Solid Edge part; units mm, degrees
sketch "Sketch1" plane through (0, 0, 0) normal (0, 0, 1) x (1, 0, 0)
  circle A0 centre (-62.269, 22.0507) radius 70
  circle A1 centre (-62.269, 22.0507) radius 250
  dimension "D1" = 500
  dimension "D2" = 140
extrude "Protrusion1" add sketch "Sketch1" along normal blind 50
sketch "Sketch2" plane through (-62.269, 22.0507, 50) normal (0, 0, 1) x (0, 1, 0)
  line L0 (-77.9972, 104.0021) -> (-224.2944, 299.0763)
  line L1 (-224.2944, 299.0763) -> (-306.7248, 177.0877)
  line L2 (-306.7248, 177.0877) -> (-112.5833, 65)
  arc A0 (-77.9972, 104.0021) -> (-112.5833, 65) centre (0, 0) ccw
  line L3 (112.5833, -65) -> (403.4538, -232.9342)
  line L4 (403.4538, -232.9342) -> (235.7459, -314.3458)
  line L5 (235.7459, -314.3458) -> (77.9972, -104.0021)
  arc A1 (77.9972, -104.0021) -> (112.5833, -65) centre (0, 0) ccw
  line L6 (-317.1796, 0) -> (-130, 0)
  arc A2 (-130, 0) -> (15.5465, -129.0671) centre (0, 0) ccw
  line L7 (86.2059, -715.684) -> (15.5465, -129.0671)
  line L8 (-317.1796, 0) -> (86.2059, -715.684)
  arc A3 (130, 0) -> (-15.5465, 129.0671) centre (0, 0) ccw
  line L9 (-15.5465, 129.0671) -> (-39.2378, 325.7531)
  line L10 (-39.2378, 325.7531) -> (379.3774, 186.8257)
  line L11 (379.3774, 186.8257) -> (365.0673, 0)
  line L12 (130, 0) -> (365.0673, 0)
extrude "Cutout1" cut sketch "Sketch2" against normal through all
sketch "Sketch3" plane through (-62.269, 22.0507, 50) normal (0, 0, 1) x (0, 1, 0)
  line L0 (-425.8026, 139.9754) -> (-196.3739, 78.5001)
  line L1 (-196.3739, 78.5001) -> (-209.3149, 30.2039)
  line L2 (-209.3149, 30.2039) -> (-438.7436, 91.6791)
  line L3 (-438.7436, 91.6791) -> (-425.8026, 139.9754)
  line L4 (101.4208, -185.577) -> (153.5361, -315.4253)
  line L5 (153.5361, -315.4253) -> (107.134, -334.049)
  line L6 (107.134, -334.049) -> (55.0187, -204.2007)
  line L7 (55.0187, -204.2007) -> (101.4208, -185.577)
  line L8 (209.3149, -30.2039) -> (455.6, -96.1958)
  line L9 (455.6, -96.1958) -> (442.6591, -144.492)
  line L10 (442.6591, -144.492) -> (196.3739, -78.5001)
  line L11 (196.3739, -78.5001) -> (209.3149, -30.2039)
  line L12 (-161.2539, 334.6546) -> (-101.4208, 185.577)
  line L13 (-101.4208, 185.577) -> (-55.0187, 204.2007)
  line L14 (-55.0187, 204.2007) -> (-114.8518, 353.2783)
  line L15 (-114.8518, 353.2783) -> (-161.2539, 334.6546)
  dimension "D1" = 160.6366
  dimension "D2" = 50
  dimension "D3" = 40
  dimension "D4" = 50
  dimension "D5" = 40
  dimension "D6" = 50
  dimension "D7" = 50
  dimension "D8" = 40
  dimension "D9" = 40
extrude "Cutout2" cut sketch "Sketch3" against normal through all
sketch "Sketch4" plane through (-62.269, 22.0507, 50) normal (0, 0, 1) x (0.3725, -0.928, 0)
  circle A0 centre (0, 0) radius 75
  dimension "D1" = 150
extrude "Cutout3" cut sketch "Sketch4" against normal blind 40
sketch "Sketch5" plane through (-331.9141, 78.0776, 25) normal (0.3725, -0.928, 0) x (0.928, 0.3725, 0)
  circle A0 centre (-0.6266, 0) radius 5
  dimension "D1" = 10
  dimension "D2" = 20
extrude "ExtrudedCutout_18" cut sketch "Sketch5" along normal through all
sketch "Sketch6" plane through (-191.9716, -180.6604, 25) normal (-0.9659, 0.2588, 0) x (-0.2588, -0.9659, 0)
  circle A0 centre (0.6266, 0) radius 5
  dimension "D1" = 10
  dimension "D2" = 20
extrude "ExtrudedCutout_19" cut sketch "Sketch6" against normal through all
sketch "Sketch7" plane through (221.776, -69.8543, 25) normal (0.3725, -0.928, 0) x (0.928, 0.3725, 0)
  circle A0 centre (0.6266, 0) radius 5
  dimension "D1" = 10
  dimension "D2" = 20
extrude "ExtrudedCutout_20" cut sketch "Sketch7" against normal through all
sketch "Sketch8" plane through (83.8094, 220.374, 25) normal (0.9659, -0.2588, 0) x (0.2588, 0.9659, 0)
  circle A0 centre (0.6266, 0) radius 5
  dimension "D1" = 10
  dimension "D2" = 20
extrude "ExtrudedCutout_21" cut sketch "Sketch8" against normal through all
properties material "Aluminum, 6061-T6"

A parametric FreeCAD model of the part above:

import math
import FreeCAD as App
import Part
import Sketcher
Q = App.Units.Quantity

doc = App.newDocument("Part")
params = doc.addObject("Spreadsheet::Sheet", "Params")
for row, (alias, value) in enumerate([
    ("sketch1_diameter", "500 mm"),
    ("sketch1_diameter2", "140 mm"),
    ("pad1_length", "50 mm"),
    ("sketch2_radius", "130 mm"),
    ("sketch2_radius2", "130 mm"),
    ("sketch2_radius3", "130 mm"),
    ("sketch2_radius4", "130 mm"),
    ("sketch3_length", "50 mm"),
    ("sketch3_length2", "50 mm"),
    ("sketch3_length3", "50 mm"),
    ("sketch3_length4", "50 mm"),
    ("sketch3_length5", "50 mm"),
    ("sketch4_diameter", "150 mm"),
    ("pocket3_length", "40 mm"),
    ("sketch5_diameter", "10 mm"),
    ("sketch6_diameter", "10 mm"),
    ("sketch7_diameter", "10 mm"),
    ("sketch8_diameter", "10 mm"),
], start=1):
    params.set(f"A{row}", alias)
    params.set(f"B{row}", "=" + value)
    params.setAlias(f"B{row}", alias)

body = doc.addObject("PartDesign::Body", "Body")

sketch1 = body.newObject("Sketcher::SketchObject", "Sketch")
sketch1.AttachmentSupport = (doc.getObject("XY_Plane"), [""])
sketch1.MapMode = "FlatFace"
sketch1.addGeometry([
    Part.Circle(App.Vector(-62.269, 22.0507, 0), App.Vector(0, 0, 1), 250),
    Part.Circle(App.Vector(-62.269, 22.0507, 0), App.Vector(0, 0, 1), 70),
], False)
sketch1.addConstraint([
    Sketcher.Constraint("Coincident", 1, 3, 0, 3),
    Sketcher.Constraint("Diameter", 0, Q("500 mm")),
    Sketcher.Constraint("Diameter", 1, Q("140 mm")),
    Sketcher.Constraint("DistanceX", 0, 3, -1, 1, Q("62.269 mm")),
    Sketcher.Constraint("DistanceY", -1, 1, 0, 3, Q("22.0507 mm")),
])
sketch1.setExpression("Constraints[1]", "Params.sketch1_diameter")
sketch1.setExpression("Constraints[2]", "Params.sketch1_diameter2")
pad1 = body.newObject("PartDesign::Pad", "Pad")
pad1.Profile = sketch1
pad1.setExpression("Length", "Params.pad1_length")

sketch2 = body.newObject("Sketcher::SketchObject", "Sketch001")
sketch2.AttachmentSupport = (doc.getObject("XY_Plane"), [""])
sketch2.MapMode = "FlatFace"
sketch2.AttachmentOffset = App.Placement(App.Vector(0, 0, 50), App.Rotation())
sketch2.addGeometry([
    Part.ArcOfCircle(Part.Circle(App.Vector(-62.269, 22.0507, 0), App.Vector(0, 0, 1), 130), math.radians(-143.131645), math.radians(-120.000001)),
    Part.LineSegment(App.Vector(-166.2711, -55.9465, 0), App.Vector(-361.3453, -202.2437, 0)),
    Part.LineSegment(App.Vector(-361.3453, -202.2437, 0), App.Vector(-239.3567, -284.6741, 0)),
    Part.LineSegment(App.Vector(-239.3567, -284.6741, 0), App.Vector(-127.269, -90.5326, 0)),
    Part.LineSegment(App.Vector(170.6652, 425.5045, 0), App.Vector(2.731, 134.634, 0)),
    Part.ArcOfCircle(Part.Circle(App.Vector(-62.269, 22.0507, 0), App.Vector(0, 0, 1), 130), math.radians(36.868355), math.radians(59.999999)),
    Part.LineSegment(App.Vector(41.7331, 100.0479, 0), App.Vector(252.0768, 257.7966, 0)),
    Part.LineSegment(App.Vector(252.0768, 257.7966, 0), App.Vector(170.6652, 425.5045, 0)),
    Part.LineSegment(App.Vector(-62.269, -107.9493, 0), App.Vector(-62.269, -295.1289, 0)),
    Part.LineSegment(App.Vector(-62.269, -295.1289, 0), App.Vector(653.415, 108.2566, 0)),
    Part.LineSegment(App.Vector(653.415, 108.2566, 0), App.Vector(66.7981, 37.5972, 0)),
    Part.ArcOfCircle(Part.Circle(App.Vector(-62.269, 22.0507, 0), App.Vector(0, 0, 1), 130), math.radians(-90), math.radians(6.86835)),
    Part.ArcOfCircle(Part.Circle(App.Vector(-62.269, 22.0507, 0), App.Vector(0, 0, 1), 130), math.radians(90), math.radians(186.86835)),
    Part.LineSegment(App.Vector(-62.269, 152.0507, 0), App.Vector(-62.269, 387.118, 0)),
    Part.LineSegment(App.Vector(-62.269, 387.118, 0), App.Vector(-249.0947, 401.4281, 0)),
    Part.LineSegment(App.Vector(-249.0947, 401.4281, 0), App.Vector(-388.0221, -17.1871, 0)),
    Part.LineSegment(App.Vector(-388.0221, -17.1871, 0), App.Vector(-191.3361, 6.5042, 0)),
], False)
sketch2.addConstraint([
    Sketcher.Constraint("Coincident", 0, 1, 1, 1),
    Sketcher.Constraint("Coincident", 1, 2, 2, 1),
    Sketcher.Constraint("Coincident", 2, 2, 3, 1),
    Sketcher.Constraint("Coincident", 3, 2, 0, 2),
    Sketcher.Constraint("Coincident", 4, 2, 5, 2),
    Sketcher.Constraint("Coincident", 5, 1, 6, 1),
    Sketcher.Constraint("Coincident", 6, 2, 7, 1),
    Sketcher.Constraint("Coincident", 7, 2, 4, 1),
    Sketcher.Constraint("Coincident", 8, 2, 9, 1),
    Sketcher.Constraint("Coincident", 9, 2, 10, 1),
    Sketcher.Constraint("Coincident", 10, 2, 11, 2),
    Sketcher.Constraint("Coincident", 11, 1, 8, 1),
    Sketcher.Constraint("Coincident", 12, 1, 13, 1),
    Sketcher.Constraint("Coincident", 13, 2, 14, 1),
    Sketcher.Constraint("Coincident", 14, 2, 15, 1),
    Sketcher.Constraint("Coincident", 15, 2, 16, 1),
    Sketcher.Constraint("Coincident", 16, 2, 12, 2),
    Sketcher.Constraint("Vertical", 8),
    Sketcher.Constraint("Vertical", 13),
    Sketcher.Constraint("Coincident", 5, 3, 0, 3),
    Sketcher.Constraint("Coincident", 11, 3, 0, 3),
    Sketcher.Constraint("Coincident", 12, 3, 0, 3),
    Sketcher.Constraint("Radius", 0, Q("130 mm")),
    Sketcher.Constraint("Radius", 5, Q("130 mm")),
    Sketcher.Constraint("Radius", 11, Q("130 mm")),
    Sketcher.Constraint("Radius", 12, Q("130 mm")),
    Sketcher.Constraint("DistanceX", 3, 2, 0, 3, Q("65 mm")),
    Sketcher.Constraint("DistanceX", 0, 3, 4, 2, Q("65 mm")),
    Sketcher.Constraint("DistanceX", 3, 2, 8, 2, Q("65 mm")),
    Sketcher.Constraint("DistanceX", 12, 1, 4, 2, Q("65 mm")),
    Sketcher.Constraint("DistanceY", 9, 2, 6, 2, Q("149.54 mm")),
    Sketcher.Constraint("DistanceY", 5, 1, 13, 2, Q("287.07 mm")),
    Sketcher.Constraint("DistanceY", 13, 2, 14, 2, Q("14.31 mm")),
    Sketcher.Constraint("DistanceX", 14, 2, 7, 2, Q("419.76 mm")),
    Sketcher.Constraint("Distance", 14, Q("187.373 mm")),
    Sketcher.Constraint("DistanceY", 8, 2, 8, 1, Q("187.1796 mm")),
    Sketcher.Constraint("DistanceY", 13, 1, 13, 2, Q("235.0673 mm")),
    Sketcher.Constraint("DistanceX", 0, 3, -1, 1, Q("62.269 mm")),
    Sketcher.Constraint("DistanceX", 0, 1, -1, 1, Q("166.271 mm")),
    Sketcher.Constraint("DistanceY", 2, 2, -1, 1, Q("284.674 mm")),
    Sketcher.Constraint("DistanceY", -1, 1, 4, 2, Q("134.634 mm")),
    Sketcher.Constraint("DistanceX", -1, 1, 9, 2, Q("653.415 mm")),
    Sketcher.Constraint("DistanceX", -1, 1, 10, 2, Q("66.798 mm")),
    Sketcher.Constraint("DistanceX", 15, 2, -1, 1, Q("388.022 mm")),
    Sketcher.Constraint("DistanceY", 15, 2, -1, 1, Q("17.187 mm")),
    Sketcher.Constraint("DistanceX", 16, 2, -1, 1, Q("191.336 mm")),
    Sketcher.Constraint("DistanceY", 0, 3, 6, 2, Q("235.746 mm")),
    Sketcher.Constraint("DistanceY", 6, 2, 7, 2, Q("167.708 mm")),
    Sketcher.Constraint("Distance", 1, Q("243.8377 mm")),
    Sketcher.Constraint("Distance", 2, Q("147.2277 mm")),
    Sketcher.Constraint("Distance", 3, Q("224.1753 mm")),
    Sketcher.Constraint("Distance", 6, Q("262.9242 mm")),
])
sketch2.setExpression("Constraints[22]", "Params.sketch2_radius")
sketch2.setExpression("Constraints[23]", "Params.sketch2_radius2")
sketch2.setExpression("Constraints[24]", "Params.sketch2_radius3")
sketch2.setExpression("Constraints[25]", "Params.sketch2_radius4")
pocket1 = body.newObject("PartDesign::Pocket", "Pocket")
pocket1.Profile = sketch2
pocket1.Type = "ThroughAll"

sketch3 = body.newObject("Sketcher::SketchObject", "Sketch002")
sketch3.AttachmentSupport = (doc.getObject("XY_Plane"), [""])
sketch3.MapMode = "FlatFace"
sketch3.AttachmentOffset = App.Placement(App.Vector(0, 0, 50), App.Rotation())
sketch3.addGeometry([
    Part.LineSegment(App.Vector(-140.7691, -174.3232, 0), App.Vector(-202.2444, -403.7519, 0)),
    Part.LineSegment(App.Vector(-202.2444, -403.7519, 0), App.Vector(-153.9481, -416.6929, 0)),
    Part.LineSegment(App.Vector(-153.9481, -416.6929, 0), App.Vector(-92.4729, -187.2642, 0)),
    Part.LineSegment(App.Vector(-92.4729, -187.2642, 0), App.Vector(-140.7691, -174.3232, 0)),
    Part.LineSegment(App.Vector(253.1563, 175.5868, 0), App.Vector(123.308, 123.4715, 0)),
    Part.LineSegment(App.Vector(123.308, 123.4715, 0), App.Vector(141.9317, 77.0694, 0)),
    Part.LineSegment(App.Vector(141.9317, 77.0694, 0), App.Vector(271.78, 129.1847, 0)),
    Part.LineSegment(App.Vector(271.78, 129.1847, 0), App.Vector(253.1563, 175.5868, 0)),
    Part.LineSegment(App.Vector(33.9268, 477.6507, 0), App.Vector(-32.0651, 231.3656, 0)),
    Part.LineSegment(App.Vector(-32.0651, 231.3656, 0), App.Vector(16.2311, 218.4246, 0)),
    Part.LineSegment(App.Vector(16.2311, 218.4246, 0), App.Vector(82.223, 464.7098, 0)),
    Part.LineSegment(App.Vector(82.223, 464.7098, 0), App.Vector(33.9268, 477.6507, 0)),
    Part.LineSegment(App.Vector(-415.5473, -92.8011, 0), App.Vector(-396.9236, -139.2032, 0)),
    Part.LineSegment(App.Vector(-396.9236, -139.2032, 0), App.Vector(-247.846, -79.3701, 0)),
    Part.LineSegment(App.Vector(-247.846, -79.3701, 0), App.Vector(-266.4697, -32.968, 0)),
    Part.LineSegment(App.Vector(-266.4697, -32.968, 0), App.Vector(-415.5473, -92.8011, 0)),
], False)
sketch3.addConstraint([
    Sketcher.Constraint("Coincident", 0, 2, 1, 1),
    Sketcher.Constraint("Coincident", 1, 2, 2, 1),
    Sketcher.Constraint("Coincident", 2, 2, 3, 1),
    Sketcher.Constraint("Coincident", 3, 2, 0, 1),
    Sketcher.Constraint("Coincident", 4, 2, 5, 1),
    Sketcher.Constraint("Coincident", 5, 2, 6, 1),
    Sketcher.Constraint("Coincident", 6, 2, 7, 1),
    Sketcher.Constraint("Coincident", 7, 2, 4, 1),
    Sketcher.Constraint("Coincident", 8, 2, 9, 1),
    Sketcher.Constraint("Coincident", 9, 2, 10, 1),
    Sketcher.Constraint("Coincident", 10, 2, 11, 1),
    Sketcher.Constraint("Coincident", 11, 2, 8, 1),
    Sketcher.Constraint("Coincident", 12, 2, 13, 1),
    Sketcher.Constraint("Coincident", 13, 2, 14, 1),
    Sketcher.Constraint("Coincident", 14, 2, 15, 1),
    Sketcher.Constraint("Coincident", 15, 2, 12, 1),
    Sketcher.Constraint("Distance", 1, Q("50 mm")),
    Sketcher.Constraint("Distance", 3, Q("50 mm")),
    Sketcher.Constraint("Distance", 5, Q("50 mm")),
    Sketcher.Constraint("Distance", 7, Q("50 mm")),
    Sketcher.Constraint("Distance", 9, Q("50 mm")),
    Sketcher.Constraint("Distance", 11, Q("50 mm")),
    Sketcher.Constraint("Distance", 12, Q("50 mm")),
    Sketcher.Constraint("Distance", 14, Q("50 mm")),
    Sketcher.Constraint("DistanceX", -1, 1, 6, 2, Q("271.78 mm")),
    Sketcher.Constraint("DistanceY", 13, 2, -1, 1, Q("79.37 mm")),
    Sketcher.Constraint("DistanceY", 3, 2, 7, 2, Q("349.91 mm")),
    Sketcher.Constraint("DistanceY", 6, 2, 9, 2, Q("89.24 mm")),
    Sketcher.Constraint("DistanceY", 3, 2, 12, 2, Q("35.12 mm")),
    Sketcher.Constraint("Distance", 0, Q("237.522 mm")),
    Sketcher.Constraint("Distance", 2, Q("237.522 mm")),
    Sketcher.Constraint("Distance", 8, Q("254.973 mm")),
    Sketcher.Constraint("DistanceY", 0, 2, -1, 1, Q("403.752 mm")),
    Sketcher.Constraint("DistanceX", 1, 2, -1, 1, Q("153.948 mm")),
    Sketcher.Constraint("DistanceY", 1, 2, -1, 1, Q("416.693 mm")),
    Sketcher.Constraint("DistanceX", 2, 2, -1, 1, Q("92.473 mm")),
    Sketcher.Constraint("DistanceX", -1, 1, 4, 2, Q("123.308 mm")),
    Sketcher.Constraint("DistanceX", 8, 2, -1, 1, Q("32.065 mm")),
    Sketcher.Constraint("DistanceX", -1, 1, 9, 2, Q("16.231 mm")),
    Sketcher.Constraint("DistanceX", -1, 1, 10, 2, Q("82.223 mm")),
    Sketcher.Constraint("DistanceX", 13, 2, -1, 1, Q("247.846 mm")),
    Sketcher.Constraint("DistanceY", 14, 2, -1, 1, Q("32.968 mm")),
    Sketcher.Constraint("DistanceY", 15, 2, -1, 1, Q("92.801 mm")),
    Sketcher.Constraint("DistanceY", 5, 2, 4, 2, Q("46.402 mm")),
    Sketcher.Constraint("DistanceY", 2, 2, 6, 2, Q("316.449 mm")),
    Sketcher.Constraint("DistanceY", 4, 2, 8, 2, Q("107.894 mm")),
    Sketcher.Constraint("DistanceY", 7, 2, 10, 2, Q("289.123 mm")),
    Sketcher.Constraint("DistanceX", 12, 2, 14, 2, Q("130.454 mm")),
])
sketch3.setExpression("Constraints[16]", "Params.sketch3_length")
sketch3.setExpression("Constraints[17]", "Params.sketch3_length2")
sketch3.setExpression("Constraints[18]", "Params.sketch3_length3")
sketch3.setExpression("Constraints[19]", "Params.sketch3_length4")
sketch3.setExpression("Constraints[20]", "Params.sketch3_length5")
pocket2 = body.newObject("PartDesign::Pocket", "Pocket001")
pocket2.Profile = sketch3
pocket2.Type = "ThroughAll"

sketch4 = body.newObject("Sketcher::SketchObject", "Sketch003")
sketch4.AttachmentSupport = (doc.getObject("XY_Plane"), [""])
sketch4.MapMode = "FlatFace"
sketch4.AttachmentOffset = App.Placement(App.Vector(0, 0, 50), App.Rotation())
sketch4.addGeometry(Part.Circle(App.Vector(-62.269, 22.0507, 0), App.Vector(0, 0, 1), 75), False)
sketch4.addConstraint([
    Sketcher.Constraint("Diameter", 0, Q("150 mm")),
    Sketcher.Constraint("DistanceX", 0, 3, -1, 1, Q("62.269 mm")),
    Sketcher.Constraint("DistanceY", -1, 1, 0, 3, Q("22.0507 mm")),
])
sketch4.setExpression("Constraints[0]", "Params.sketch4_diameter")
pocket3 = body.newObject("PartDesign::Pocket", "Pocket002")
pocket3.Profile = sketch4
pocket3.setExpression("Length", "Params.pocket3_length")

sketch5 = body.newObject("Sketcher::SketchObject", "Sketch004")
sketch5.Placement = App.Placement(App.Vector(-331.9141, 78.0776, 25), App.Rotation(App.Vector(0.928027725, 0.372511129, 0), App.Vector(0, 0, 1), App.Vector(0.372511129, -0.928027725, 0), "ZXY"))
sketch5.addGeometry(Part.Circle(App.Vector(-0.6266, 0, 0), App.Vector(0, 0, 1), 5), False)
sketch5.addConstraint([
    Sketcher.Constraint("PointOnObject", 0, 3, -1),
    Sketcher.Constraint("Diameter", 0, Q("10 mm")),
    Sketcher.Constraint("DistanceX", 0, 3, -1, 1, Q("0.6266 mm")),
])
sketch5.setExpression("Constraints[1]", "Params.sketch5_diameter")
pocket4 = body.newObject("PartDesign::Pocket", "Pocket003")
pocket4.Profile = sketch5
pocket4.Type = "ThroughAll"
pocket4.Reversed = True

sketch6 = body.newObject("Sketcher::SketchObject", "Sketch005")
sketch6.Placement = App.Placement(App.Vector(-191.9716, -180.6604, 25), App.Rotation(App.Vector(-0.258819045, -0.965925826, 0), App.Vector(0, 0, 0.999999999), App.Vector(-0.965925826, 0.258819045, 0), "ZXY"))
sketch6.addGeometry(Part.Circle(App.Vector(0.6266, 0, 0), App.Vector(0, 0, 1), 5), False)
sketch6.addConstraint([
    Sketcher.Constraint("PointOnObject", 0, 3, -1),
    Sketcher.Constraint("Diameter", 0, Q("10 mm")),
    Sketcher.Constraint("DistanceX", -1, 1, 0, 3, Q("0.6266 mm")),
])
sketch6.setExpression("Constraints[1]", "Params.sketch6_diameter")
pocket5 = body.newObject("PartDesign::Pocket", "Pocket004")
pocket5.Profile = sketch6
pocket5.Type = "ThroughAll"

sketch7 = body.newObject("Sketcher::SketchObject", "Sketch006")
sketch7.Placement = App.Placement(App.Vector(221.776, -69.8543, 25), App.Rotation(App.Vector(0.928027725, 0.372511129, 0), App.Vector(0, 0, 1), App.Vector(0.372511129, -0.928027725, 0), "ZXY"))
sketch7.addGeometry(Part.Circle(App.Vector(0.6266, 0, 0), App.Vector(0, 0, 1), 5), False)
sketch7.addConstraint([
    Sketcher.Constraint("PointOnObject", 0, 3, -1),
    Sketcher.Constraint("Diameter", 0, Q("10 mm")),
    Sketcher.Constraint("DistanceX", -1, 1, 0, 3, Q("0.6266 mm")),
])
sketch7.setExpression("Constraints[1]", "Params.sketch7_diameter")
pocket6 = body.newObject("PartDesign::Pocket", "Pocket005")
pocket6.Profile = sketch7
pocket6.Type = "ThroughAll"

sketch8 = body.newObject("Sketcher::SketchObject", "Sketch007")
sketch8.Placement = App.Placement(App.Vector(83.8094, 220.374, 25), App.Rotation(App.Vector(0.258819045, 0.965925826, 0), App.Vector(0, 0, 0.999999999), App.Vector(0.965925826, -0.258819045, 0), "ZXY"))
sketch8.addGeometry(Part.Circle(App.Vector(0.6266, 0, 0), App.Vector(0, 0, 1), 5), False)
sketch8.addConstraint([
    Sketcher.Constraint("PointOnObject", 0, 3, -1),
    Sketcher.Constraint("Diameter", 0, Q("10 mm")),
    Sketcher.Constraint("DistanceX", -1, 1, 0, 3, Q("0.6266 mm")),
])
sketch8.setExpression("Constraints[1]", "Params.sketch8_diameter")
pocket7 = body.newObject("PartDesign::Pocket", "Pocket006")
pocket7.Profile = sketch8
pocket7.Type = "ThroughAll"

doc.recompute()
